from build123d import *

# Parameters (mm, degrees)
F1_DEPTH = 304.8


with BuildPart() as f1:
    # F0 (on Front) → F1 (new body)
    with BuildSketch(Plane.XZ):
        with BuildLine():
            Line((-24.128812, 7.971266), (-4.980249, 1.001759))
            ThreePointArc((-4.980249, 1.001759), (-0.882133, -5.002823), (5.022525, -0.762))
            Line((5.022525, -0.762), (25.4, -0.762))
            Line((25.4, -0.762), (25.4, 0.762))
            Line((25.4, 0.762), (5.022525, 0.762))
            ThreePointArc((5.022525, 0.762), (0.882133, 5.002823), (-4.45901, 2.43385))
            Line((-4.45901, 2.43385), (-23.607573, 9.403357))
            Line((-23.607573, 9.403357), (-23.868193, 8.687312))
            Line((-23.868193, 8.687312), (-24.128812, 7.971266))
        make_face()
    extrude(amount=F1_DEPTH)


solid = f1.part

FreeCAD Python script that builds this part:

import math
import FreeCAD as App
import Part
import Sketcher
from FreeCAD import Vector
Q = App.Units.Quantity

doc = App.newDocument("Part")
body = doc.addObject("PartDesign::Body", "Body")

# Sketch on XZ plane
sketch1 = doc.addObject("Sketcher::SketchObject", "Sketch")
body.addObject(sketch1)
sketch1.AttachmentSupport = (doc.XZ_Plane, [""])
sketch1.MapMode = "FlatFace"
sketch1.addGeometry([
    Part.LineSegment(Vector(-24.1, 8, 0), Vector(-5, 1, 0)),  # 0
    Part.ArcOfCircle(Part.Circle(Vector(0, 0, 0), Vector(0, 0, 1), 5.1), math.radians(169), math.radians(351)),  # 1
    Part.LineSegment(Vector(5, -0.8, 0), Vector(25.4, -0.8, 0)),  # 2
    Part.LineSegment(Vector(25.4, -0.8, 0), Vector(25.4, 0.8, 0)),  # 3
    Part.LineSegment(Vector(25.4, 0.8, 0), Vector(5, 0.8, 0)),  # 4
    Part.ArcOfCircle(Part.Circle(Vector(0, 0, 0), Vector(0, 0, 1), 5.1), math.radians(9), math.radians(151)),  # 5
    Part.LineSegment(Vector(-4.5, 2.4, 0), Vector(-23.6, 9.4, 0)),  # 6
    Part.LineSegment(Vector(-23.6, 9.4, 0), Vector(-23.9, 8.7, 0)),  # 7
    Part.LineSegment(Vector(-23.9, 8.7, 0), Vector(-24.1, 8, 0)),  # 8
], False)
sketch1.addConstraint([
    Sketcher.Constraint("Coincident", 0, 2, 1, 1),
    Sketcher.Constraint("Coincident", 1, 2, 2, 1),
    Sketcher.Constraint("Coincident", 2, 2, 3, 1),
    Sketcher.Constraint("Coincident", 3, 2, 4, 1),
    Sketcher.Constraint("Coincident", 4, 2, 5, 1),
    Sketcher.Constraint("Coincident", 5, 2, 6, 1),
    Sketcher.Constraint("Coincident", 6, 2, 7, 1),
    Sketcher.Constraint("Coincident", 7, 2, 8, 1),
    Sketcher.Constraint("Coincident", 8, 2, 0, 1),
    Sketcher.Constraint("Horizontal", 2),
    Sketcher.Constraint("Vertical", 3),
    Sketcher.Constraint("Horizontal", 4),
    Sketcher.Constraint("Coincident", 1, 3, -1, 1),
    Sketcher.Constraint("Coincident", 5, 3, -1, 1),
    Sketcher.Constraint("Equal", 1, 5),
    Sketcher.Constraint("Parallel", 0, 6),
    Sketcher.Constraint("Perpendicular", 6, 7),
    Sketcher.Constraint("Parallel", 7, 8),
    Sketcher.Constraint("Vertical", 1, 2, 4, 2),
    Sketcher.Constraint("Equal", 0, 6),
    Sketcher.Constraint("Equal", 7, 8),
    Sketcher.Constraint("Radius", 1, Q("0.2 in")),
    Sketcher.Constraint("DistanceX", -1, 1, 2, 2, Q("1 in")),
    Sketcher.Constraint("Angle", 0, Q("-20 deg")),
    Sketcher.Constraint("DistanceY", 3, 1, 3, 2, Q("0.06 in")),
    Sketcher.Constraint("Distance", 7, Q("0.03 in")),
    Sketcher.Constraint("DistanceX", 8, 2, 5, 2, 19.669802),
])
pad1 = doc.addObject("PartDesign::Pad", "Pad")
body.addObject(pad1)
pad1.Profile = sketch1
pad1.Length = Q("12 in")

doc.recompute()
